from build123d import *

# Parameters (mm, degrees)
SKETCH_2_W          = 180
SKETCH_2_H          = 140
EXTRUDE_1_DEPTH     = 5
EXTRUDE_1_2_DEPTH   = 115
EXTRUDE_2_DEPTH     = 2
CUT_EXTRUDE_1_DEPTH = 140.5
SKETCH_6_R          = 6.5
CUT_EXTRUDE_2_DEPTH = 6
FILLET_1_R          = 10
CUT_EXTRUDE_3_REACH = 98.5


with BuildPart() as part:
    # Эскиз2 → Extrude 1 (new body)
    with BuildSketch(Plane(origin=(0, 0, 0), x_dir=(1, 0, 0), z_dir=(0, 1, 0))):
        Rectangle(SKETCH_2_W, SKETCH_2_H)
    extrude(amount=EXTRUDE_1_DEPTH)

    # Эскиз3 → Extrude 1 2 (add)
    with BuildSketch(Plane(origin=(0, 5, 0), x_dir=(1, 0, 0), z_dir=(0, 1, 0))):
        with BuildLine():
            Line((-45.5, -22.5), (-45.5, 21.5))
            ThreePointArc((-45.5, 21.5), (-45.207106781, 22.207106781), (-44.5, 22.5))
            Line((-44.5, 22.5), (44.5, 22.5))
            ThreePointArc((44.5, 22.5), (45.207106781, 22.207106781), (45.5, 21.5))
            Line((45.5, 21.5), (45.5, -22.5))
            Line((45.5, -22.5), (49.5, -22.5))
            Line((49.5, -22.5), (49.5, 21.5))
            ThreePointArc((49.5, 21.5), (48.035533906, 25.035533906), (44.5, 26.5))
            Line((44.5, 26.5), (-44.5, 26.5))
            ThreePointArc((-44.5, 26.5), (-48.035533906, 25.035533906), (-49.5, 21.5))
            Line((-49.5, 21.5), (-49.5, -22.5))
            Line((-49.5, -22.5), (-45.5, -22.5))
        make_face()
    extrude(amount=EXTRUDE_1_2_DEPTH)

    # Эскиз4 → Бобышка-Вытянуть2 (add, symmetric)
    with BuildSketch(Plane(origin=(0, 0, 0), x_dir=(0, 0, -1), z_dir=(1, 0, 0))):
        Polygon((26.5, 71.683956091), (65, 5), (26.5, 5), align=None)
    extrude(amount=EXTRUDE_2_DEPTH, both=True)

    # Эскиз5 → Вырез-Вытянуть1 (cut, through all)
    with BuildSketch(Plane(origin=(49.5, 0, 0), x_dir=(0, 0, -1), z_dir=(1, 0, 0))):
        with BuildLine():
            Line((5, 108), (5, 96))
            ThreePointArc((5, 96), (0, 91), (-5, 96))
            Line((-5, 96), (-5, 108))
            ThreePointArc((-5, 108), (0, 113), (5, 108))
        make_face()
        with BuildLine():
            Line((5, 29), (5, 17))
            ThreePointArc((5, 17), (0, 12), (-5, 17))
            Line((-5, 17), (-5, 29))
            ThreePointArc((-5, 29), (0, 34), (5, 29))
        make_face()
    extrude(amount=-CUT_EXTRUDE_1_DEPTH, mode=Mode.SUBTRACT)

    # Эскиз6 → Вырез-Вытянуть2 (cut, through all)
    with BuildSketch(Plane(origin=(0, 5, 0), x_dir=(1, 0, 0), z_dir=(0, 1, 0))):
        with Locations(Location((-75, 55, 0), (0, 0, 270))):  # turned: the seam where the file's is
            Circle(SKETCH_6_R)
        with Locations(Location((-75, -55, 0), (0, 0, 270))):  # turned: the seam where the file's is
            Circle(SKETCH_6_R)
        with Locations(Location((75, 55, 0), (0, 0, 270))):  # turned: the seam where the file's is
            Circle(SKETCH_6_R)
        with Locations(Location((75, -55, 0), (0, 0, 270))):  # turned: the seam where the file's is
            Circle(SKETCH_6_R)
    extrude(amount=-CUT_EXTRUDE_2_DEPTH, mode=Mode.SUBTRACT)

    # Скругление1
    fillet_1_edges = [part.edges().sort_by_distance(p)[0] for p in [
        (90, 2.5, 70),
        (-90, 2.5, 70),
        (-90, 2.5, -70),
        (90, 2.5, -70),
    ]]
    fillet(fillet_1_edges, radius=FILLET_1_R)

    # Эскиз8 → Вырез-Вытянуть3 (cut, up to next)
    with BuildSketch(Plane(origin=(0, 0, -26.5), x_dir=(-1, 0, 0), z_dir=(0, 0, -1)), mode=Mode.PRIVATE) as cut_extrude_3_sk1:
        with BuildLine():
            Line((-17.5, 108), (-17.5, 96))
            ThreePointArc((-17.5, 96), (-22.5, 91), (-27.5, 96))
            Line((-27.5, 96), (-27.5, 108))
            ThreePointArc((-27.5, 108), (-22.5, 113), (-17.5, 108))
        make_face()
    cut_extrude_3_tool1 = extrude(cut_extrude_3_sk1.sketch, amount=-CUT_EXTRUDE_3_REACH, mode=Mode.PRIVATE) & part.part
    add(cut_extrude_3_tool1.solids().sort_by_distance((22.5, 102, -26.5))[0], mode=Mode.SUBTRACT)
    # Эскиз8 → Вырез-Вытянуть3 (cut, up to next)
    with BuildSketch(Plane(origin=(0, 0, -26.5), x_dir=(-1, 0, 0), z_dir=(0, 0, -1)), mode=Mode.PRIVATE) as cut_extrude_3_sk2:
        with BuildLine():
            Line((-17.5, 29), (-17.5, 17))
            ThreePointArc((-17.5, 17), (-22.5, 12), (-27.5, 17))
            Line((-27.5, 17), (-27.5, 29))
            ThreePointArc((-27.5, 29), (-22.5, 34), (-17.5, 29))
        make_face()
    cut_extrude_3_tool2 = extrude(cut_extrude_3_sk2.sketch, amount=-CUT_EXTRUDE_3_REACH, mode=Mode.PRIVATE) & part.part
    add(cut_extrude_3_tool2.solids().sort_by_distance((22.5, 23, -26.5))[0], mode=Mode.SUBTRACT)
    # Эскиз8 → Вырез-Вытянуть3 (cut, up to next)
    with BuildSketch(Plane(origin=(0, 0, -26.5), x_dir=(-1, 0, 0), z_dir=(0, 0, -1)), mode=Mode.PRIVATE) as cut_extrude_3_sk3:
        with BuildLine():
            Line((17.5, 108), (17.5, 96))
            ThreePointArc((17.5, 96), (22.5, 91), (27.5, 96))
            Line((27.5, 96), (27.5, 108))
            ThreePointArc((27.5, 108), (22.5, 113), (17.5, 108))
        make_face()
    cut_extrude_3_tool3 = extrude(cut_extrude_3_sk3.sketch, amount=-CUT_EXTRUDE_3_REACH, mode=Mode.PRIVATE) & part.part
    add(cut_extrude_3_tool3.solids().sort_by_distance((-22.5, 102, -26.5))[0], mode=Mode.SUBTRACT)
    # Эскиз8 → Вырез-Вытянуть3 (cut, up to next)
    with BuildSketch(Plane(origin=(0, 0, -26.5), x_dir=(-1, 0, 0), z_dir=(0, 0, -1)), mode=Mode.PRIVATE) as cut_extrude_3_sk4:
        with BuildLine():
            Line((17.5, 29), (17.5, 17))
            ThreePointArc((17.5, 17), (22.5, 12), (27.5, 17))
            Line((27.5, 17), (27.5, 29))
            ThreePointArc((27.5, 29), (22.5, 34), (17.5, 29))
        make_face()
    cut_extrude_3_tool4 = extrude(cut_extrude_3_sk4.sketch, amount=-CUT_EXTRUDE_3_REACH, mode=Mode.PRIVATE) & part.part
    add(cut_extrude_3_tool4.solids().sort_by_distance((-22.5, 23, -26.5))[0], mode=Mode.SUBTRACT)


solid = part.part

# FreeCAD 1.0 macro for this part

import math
import FreeCAD as App
import Part
import Sketcher
Q = App.Units.Quantity


def edges_at(feature, points):
    """Names of the edges that pass closest to the given points."""
    edges = feature.Shape.Edges
    near = lambda p: min(range(len(edges)), key=lambda i: edges[i].distToShape(Part.Vertex(*p))[0])
    return sorted({f"Edge{near(p) + 1}" for p in points})

doc = App.newDocument("Part")
body = doc.addObject("PartDesign::Body", "Body")

# Sketch on XZ plane
sketch1 = body.newObject("Sketcher::SketchObject", "Sketch")
sketch1.AttachmentSupport = (doc.getObject("XZ_Plane"), [""])
sketch1.MapMode = "FlatFace"
sketch1.addGeometry([
    Part.LineSegment(App.Vector(-90, -70, 0), App.Vector(-90, 70, 0)),
    Part.LineSegment(App.Vector(-90, 70, 0), App.Vector(90, 70, 0)),
    Part.LineSegment(App.Vector(90, 70, 0), App.Vector(90, -70, 0)),
    Part.LineSegment(App.Vector(90, -70, 0), App.Vector(-90, -70, 0)),
], False)
sketch1.addConstraint([
    Sketcher.Constraint("Coincident", 0, 2, 1, 1),
    Sketcher.Constraint("Coincident", 1, 2, 2, 1),
    Sketcher.Constraint("Coincident", 2, 2, 3, 1),
    Sketcher.Constraint("Coincident", 3, 2, 0, 1),
    Sketcher.Constraint("Vertical", 0),
    Sketcher.Constraint("Horizontal", 1),
    Sketcher.Constraint("Vertical", 2),
    Sketcher.Constraint("Horizontal", 3),
    Sketcher.Constraint("Symmetric", 0, 2, 2, 2, -1, 1),
    Sketcher.Constraint("DistanceX", 1, 1, 1, 2, Q("180 mm")),
    Sketcher.Constraint("DistanceY", 0, 1, 0, 2, Q("140 mm")),
])
pad1 = body.newObject("PartDesign::Pad", "Pad")
pad1.Profile = sketch1
pad1.Length = 5
pad1.Reversed = True

# Sketch on XZ plane
sketch2 = body.newObject("Sketcher::SketchObject", "Sketch001")
sketch2.AttachmentSupport = (doc.getObject("XZ_Plane"), [""])
sketch2.MapMode = "FlatFace"
sketch2.AttachmentOffset = App.Placement(App.Vector(0, 0, -5), App.Rotation())
sketch2.addGeometry([
    Part.LineSegment(App.Vector(-45.5, 22.5, 0), App.Vector(-45.5, -21.5, 0)),  # 0
    Part.ArcOfCircle(Part.Circle(App.Vector(-44.5, -21.5, 0), App.Vector(0, 0, 1), 1), math.radians(-180), math.radians(-90)),  # 1
    Part.LineSegment(App.Vector(-44.5, -22.5, 0), App.Vector(44.5, -22.5, 0)),  # 2
    Part.ArcOfCircle(Part.Circle(App.Vector(44.5, -21.5, 0), App.Vector(0, 0, 1), 1), math.radians(-90), math.radians(0)),  # 3
    Part.LineSegment(App.Vector(45.5, -21.5, 0), App.Vector(45.5, 22.5, 0)),  # 4
    Part.LineSegment(App.Vector(45.5, 22.5, 0), App.Vector(49.5, 22.5, 0)),  # 5
    Part.LineSegment(App.Vector(49.5, 22.5, 0), App.Vector(49.5, -21.5, 0)),  # 6
    Part.ArcOfCircle(Part.Circle(App.Vector(44.5, -21.5, 0), App.Vector(0, 0, 1), 5), math.radians(-90), math.radians(0)),  # 7
    Part.LineSegment(App.Vector(44.5, -26.5, 0), App.Vector(-44.5, -26.5, 0)),  # 8
    Part.ArcOfCircle(Part.Circle(App.Vector(-44.5, -21.5, 0), App.Vector(0, 0, 1), 5), math.radians(180), math.radians(270)),  # 9
    Part.LineSegment(App.Vector(-49.5, -21.5, 0), App.Vector(-49.5, 22.5, 0)),  # 10
    Part.LineSegment(App.Vector(-49.5, 22.5, 0), App.Vector(-45.5, 22.5, 0)),  # 11
], False)
sketch2.addConstraint([
    Sketcher.Constraint("Tangent", 0, 2, 1, 1),
    Sketcher.Constraint("Tangent", 1, 2, 2, 1),
    Sketcher.Constraint("Tangent", 2, 2, 3, 1),
    Sketcher.Constraint("Tangent", 3, 2, 4, 1),
    Sketcher.Constraint("Coincident", 4, 2, 5, 1),
    Sketcher.Constraint("Coincident", 5, 2, 6, 1),
    Sketcher.Constraint("Tangent", 6, 2, 7, 2),
    Sketcher.Constraint("Tangent", 7, 1, 8, 1),
    Sketcher.Constraint("Tangent", 8, 2, 9, 2),
    Sketcher.Constraint("Tangent", 9, 1, 10, 1),
    Sketcher.Constraint("Coincident", 10, 2, 11, 1),
    Sketcher.Constraint("Coincident", 11, 2, 0, 1),
    Sketcher.Constraint("Vertical", 0),
    Sketcher.Constraint("Horizontal", 2),
    Sketcher.Constraint("Vertical", 4),
    Sketcher.Constraint("Horizontal", 5),
    Sketcher.Constraint("Vertical", 6),
    Sketcher.Constraint("Horizontal", 8),
    Sketcher.Constraint("Vertical", 10),
    Sketcher.Constraint("Horizontal", 11),
    Sketcher.Constraint("Coincident", 7, 3, 3, 3),
    Sketcher.Constraint("Coincident", 9, 3, 1, 3),
    Sketcher.Constraint("Equal", 1, 3),
    Sketcher.Constraint("Symmetric", 5, 2, 10, 2, -2),
    Sketcher.Constraint("Radius", 1, Q("1 mm")),
    Sketcher.Constraint("Radius", 7, Q("5 mm")),
    Sketcher.Constraint("DistanceX", 2, 1, 2, 2, Q("89 mm")),
    Sketcher.Constraint("DistanceY", 0, 2, 0, 1, Q("44 mm")),
    Sketcher.Constraint("DistanceY", 1, 3, -1, 1, Q("21.5 mm")),
])
pad2 = body.newObject("PartDesign::Pad", "Pad001")
pad2.Profile = sketch2
pad2.Length = 115
pad2.Reversed = True

# Sketch on YZ plane
sketch3 = body.newObject("Sketcher::SketchObject", "Sketch002")
sketch3.AttachmentSupport = (doc.getObject("YZ_Plane"), [""])
sketch3.MapMode = "FlatFace"
sketch3.addGeometry([
    Part.LineSegment(App.Vector(5, -65, 0), App.Vector(72, -26, 0)),
    Part.LineSegment(App.Vector(72, -26, 0), App.Vector(5, -26, 0)),
    Part.LineSegment(App.Vector(5, -26, 0), App.Vector(5, -65, 0)),
], False)
sketch3.addConstraint([
    Sketcher.Constraint("Coincident", 0, 2, 1, 1),
    Sketcher.Constraint("Coincident", 1, 2, 2, 1),
    Sketcher.Constraint("Coincident", 2, 2, 0, 1),
    Sketcher.Constraint("Horizontal", 1),
    Sketcher.Constraint("Vertical", 2),
    Sketcher.Constraint("Angle", 0, Q("30 deg")),
    Sketcher.Constraint("Distance", 0, Q("77 mm")),
    Sketcher.Constraint("DistanceX", -1, 1, 1, 2, Q("5 mm")),
    Sketcher.Constraint("DistanceY", 2, 2, -1, 1, Q("65 mm")),
])
pad3 = body.newObject("PartDesign::Pad", "Pad002")
pad3.Profile = sketch3
pad3.Length = 4
pad3.Midplane = True

# Sketch on YZ plane
sketch4 = body.newObject("Sketcher::SketchObject", "Sketch003")
sketch4.AttachmentSupport = (doc.getObject("YZ_Plane"), [""])
sketch4.MapMode = "FlatFace"
sketch4.AttachmentOffset = App.Placement(App.Vector(0, 0, 49.5), App.Rotation())
sketch4.addGeometry([
    Part.LineSegment(App.Vector(96, -5, 0), App.Vector(108, -5, 0)),  # 0
    Part.ArcOfCircle(Part.Circle(App.Vector(108, 0, 0), App.Vector(0, 0, 1), 5), math.radians(-90), math.radians(90)),  # 1
    Part.LineSegment(App.Vector(108, 5, 0), App.Vector(96, 5, 0)),  # 2
    Part.ArcOfCircle(Part.Circle(App.Vector(96, 0, 0), App.Vector(0, 0, 1), 5), math.radians(90), math.radians(270)),  # 3
    Part.LineSegment(App.Vector(17, -5, 0), App.Vector(29, -5, 0)),  # 4
    Part.ArcOfCircle(Part.Circle(App.Vector(29, 0, 0), App.Vector(0, 0, 1), 5), math.radians(-90), math.radians(90)),  # 5
    Part.LineSegment(App.Vector(29, 5, 0), App.Vector(17, 5, 0)),  # 6
    Part.ArcOfCircle(Part.Circle(App.Vector(17, 0, 0), App.Vector(0, 0, 1), 5), math.radians(90), math.radians(270)),  # 7
], False)
sketch4.addConstraint([
    Sketcher.Constraint("Tangent", 0, 2, 1, 1),
    Sketcher.Constraint("Tangent", 1, 2, 2, 1),
    Sketcher.Constraint("Tangent", 2, 2, 3, 1),
    Sketcher.Constraint("Tangent", 3, 2, 0, 1),
    Sketcher.Constraint("Tangent", 4, 2, 5, 1),
    Sketcher.Constraint("Tangent", 5, 2, 6, 1),
    Sketcher.Constraint("Tangent", 6, 2, 7, 1),
    Sketcher.Constraint("Tangent", 7, 2, 4, 1),
    Sketcher.Constraint("Horizontal", 0),
    Sketcher.Constraint("Horizontal", 2),
    Sketcher.Constraint("Horizontal", 4),
    Sketcher.Constraint("Horizontal", 6),
    Sketcher.Constraint("Equal", 3, 5),
    Sketcher.Constraint("PointOnObject", 1, 3, -1),
    Sketcher.Constraint("PointOnObject", 5, 3, -1),
    Sketcher.Constraint("Equal", 2, 4),
    Sketcher.Constraint("Radius", 1, Q("5 mm")),
    Sketcher.Constraint("DistanceX", 0, 1, 0, 2, Q("12 mm")),
    Sketcher.Constraint("DistanceX", -1, 1, 1, 3, Q("108 mm")),
    Sketcher.Constraint("DistanceX", -1, 1, 5, 3, Q("29 mm")),
])
pocket1 = body.newObject("PartDesign::Pocket", "Pocket")
pocket1.Profile = sketch4
pocket1.Type = "ThroughAll"

# Sketch on XZ plane
sketch5 = body.newObject("Sketcher::SketchObject", "Sketch004")
sketch5.AttachmentSupport = (doc.getObject("XZ_Plane"), [""])
sketch5.MapMode = "FlatFace"
sketch5.AttachmentOffset = App.Placement(App.Vector(0, 0, -5), App.Rotation())
sketch5.addGeometry([
    Part.Circle(App.Vector(-75, -55, 0), App.Vector(0, 0, 1), 6),
    Part.Circle(App.Vector(-75, 55, 0), App.Vector(0, 0, 1), 6),
    Part.Circle(App.Vector(75, -55, 0), App.Vector(0, 0, 1), 6),
    Part.Circle(App.Vector(75, 55, 0), App.Vector(0, 0, 1), 6),
], False)
sketch5.addConstraint([
    Sketcher.Constraint("Equal", 0, 1),
    Sketcher.Constraint("Equal", 1, 2),
    Sketcher.Constraint("Equal", 2, 3),
    Sketcher.Constraint("Symmetric", 1, 3, 2, 3, -1, 1),
    Sketcher.Constraint("Symmetric", 0, 3, 3, 3, -1, 1),
    Sketcher.Constraint("Symmetric", 0, 3, 2, 3, -2),
    Sketcher.Constraint("Diameter", 0, Q("13 mm")),
    Sketcher.Constraint("DistanceX", 0, 3, -1, 1, Q("75 mm")),
    Sketcher.Constraint("DistanceY", 0, 3, -1, 1, Q("55 mm")),
])
pocket2 = body.newObject("PartDesign::Pocket", "Pocket001")
pocket2.Profile = sketch5
pocket2.Type = "ThroughAll"
pocket2.Reversed = True
doc.recompute()

fillet = body.newObject("PartDesign::Fillet", "Fillet")
fillet.Base = (pocket2, edges_at(pocket2, [
    (90, 2.5, 70),
    (-90, 2.5, 70),
    (-90, 2.5, -70),
    (90, 2.5, -70),
]))
fillet.Radius = 10

# Sketch on XY plane
sketch6 = body.newObject("Sketcher::SketchObject", "Sketch005")
sketch6.AttachmentSupport = (doc.getObject("XY_Plane"), [""])
sketch6.MapMode = "FlatFace"
sketch6.AttachmentOffset = App.Placement(App.Vector(0, 0, -26.5), App.Rotation())
sketch6.addGeometry([
    Part.LineSegment(App.Vector(18, 96, 0), App.Vector(18, 108, 0)),
    Part.ArcOfCircle(Part.Circle(App.Vector(22, 108, 0), App.Vector(0, 0, 1), 5), math.radians(0), math.radians(180)),
    Part.LineSegment(App.Vector(28, 108, 0), App.Vector(28, 96, 0)),
    Part.ArcOfCircle(Part.Circle(App.Vector(22, 96, 0), App.Vector(0, 0, 1), 5), math.radians(180), math.radians(360)),
], False)
sketch6.addConstraint([
    Sketcher.Constraint("Tangent", 0, 2, 1, 2),
    Sketcher.Constraint("Tangent", 1, 1, 2, 1),
    Sketcher.Constraint("Tangent", 2, 2, 3, 2),
    Sketcher.Constraint("Tangent", 3, 1, 0, 1),
    Sketcher.Constraint("Vertical", 0),
    Sketcher.Constraint("Vertical", 2),
    Sketcher.Constraint("Radius", 1, Q("5 mm")),
    Sketcher.Constraint("DistanceY", 0, 1, 0, 2, Q("12 mm")),
    Sketcher.Constraint("DistanceY", -1, 1, 1, 3, Q("108 mm")),
    Sketcher.Constraint("DistanceX", -1, 1, 1, 3, Q("22.5 mm")),
])
pocket3 = body.newObject("PartDesign::Pocket", "Pocket002")
pocket3.Profile = sketch6
pocket3.Type = "UpToFirst"
pocket3.Reversed = True

# Sketch on XY plane
sketch7 = body.newObject("Sketcher::SketchObject", "Sketch006")
sketch7.AttachmentSupport = (doc.getObject("XY_Plane"), [""])
sketch7.MapMode = "FlatFace"
sketch7.AttachmentOffset = App.Placement(App.Vector(0, 0, -26.5), App.Rotation())
sketch7.addGeometry([
    Part.LineSegment(App.Vector(18, 17, 0), App.Vector(18, 29, 0)),
    Part.ArcOfCircle(Part.Circle(App.Vector(22, 29, 0), App.Vector(0, 0, 1), 5), math.radians(0), math.radians(180)),
    Part.LineSegment(App.Vector(28, 29, 0), App.Vector(28, 17, 0)),
    Part.ArcOfCircle(Part.Circle(App.Vector(22, 17, 0), App.Vector(0, 0, 1), 5), math.radians(180), math.radians(360)),
], False)
sketch7.addConstraint([
    Sketcher.Constraint("Tangent", 0, 2, 1, 2),
    Sketcher.Constraint("Tangent", 1, 1, 2, 1),
    Sketcher.Constraint("Tangent", 2, 2, 3, 2),
    Sketcher.Constraint("Tangent", 3, 1, 0, 1),
    Sketcher.Constraint("Vertical", 0),
    Sketcher.Constraint("Vertical", 2),
    Sketcher.Constraint("Radius", 1, Q("5 mm")),
    Sketcher.Constraint("DistanceY", 0, 1, 0, 2, Q("12 mm")),
    Sketcher.Constraint("DistanceY", -1, 1, 1, 3, Q("29 mm")),
    Sketcher.Constraint("DistanceX", -1, 1, 1, 3, Q("22.5 mm")),
])
pocket4 = body.newObject("PartDesign::Pocket", "Pocket003")
pocket4.Profile = sketch7
pocket4.Type = "UpToFirst"
pocket4.Reversed = True

# Sketch on XY plane
sketch8 = body.newObject("Sketcher::SketchObject", "Sketch007")
sketch8.AttachmentSupport = (doc.getObject("XY_Plane"), [""])
sketch8.MapMode = "FlatFace"
sketch8.AttachmentOffset = App.Placement(App.Vector(0, 0, -26.5), App.Rotation())
sketch8.addGeometry([
    Part.LineSegment(App.Vector(-18, 108, 0), App.Vector(-18, 96, 0)),
    Part.ArcOfCircle(Part.Circle(App.Vector(-22, 96, 0), App.Vector(0, 0, 1), 5), math.radians(180), math.radians(360)),
    Part.LineSegment(App.Vector(-28, 96, 0), App.Vector(-28, 108, 0)),
    Part.ArcOfCircle(Part.Circle(App.Vector(-22, 108, 0), App.Vector(0, 0, 1), 5), math.radians(0), math.radians(180)),
], False)
sketch8.addConstraint([
    Sketcher.Constraint("Tangent", 0, 2, 1, 2),
    Sketcher.Constraint("Tangent", 1, 1, 2, 1),
    Sketcher.Constraint("Tangent", 2, 2, 3, 2),
    Sketcher.Constraint("Tangent", 3, 1, 0, 1),
    Sketcher.Constraint("Vertical", 0),
    Sketcher.Constraint("Vertical", 2),
    Sketcher.Constraint("Radius", 1, Q("5 mm")),
    Sketcher.Constraint("DistanceY", 0, 2, 0, 1, Q("12 mm")),
    Sketcher.Constraint("DistanceY", -1, 1, 1, 3, Q("96 mm")),
    Sketcher.Constraint("DistanceX", 1, 3, -1, 1, Q("22.5 mm")),
])
pocket5 = body.newObject("PartDesign::Pocket", "Pocket004")
pocket5.Profile = sketch8
pocket5.Type = "UpToFirst"
pocket5.Reversed = True

# Sketch on XY plane
sketch9 = body.newObject("Sketcher::SketchObject", "Sketch008")
sketch9.AttachmentSupport = (doc.getObject("XY_Plane"), [""])
sketch9.MapMode = "FlatFace"
sketch9.AttachmentOffset = App.Placement(App.Vector(0, 0, -26.5), App.Rotation())
sketch9.addGeometry([
    Part.LineSegment(App.Vector(-18, 29, 0), App.Vector(-18, 17, 0)),
    Part.ArcOfCircle(Part.Circle(App.Vector(-22, 17, 0), App.Vector(0, 0, 1), 5), math.radians(180), math.radians(360)),
    Part.LineSegment(App.Vector(-28, 17, 0), App.Vector(-28, 29, 0)),
    Part.ArcOfCircle(Part.Circle(App.Vector(-22, 29, 0), App.Vector(0, 0, 1), 5), math.radians(0), math.radians(180)),
], False)
sketch9.addConstraint([
    Sketcher.Constraint("Tangent", 0, 2, 1, 2),
    Sketcher.Constraint("Tangent", 1, 1, 2, 1),
    Sketcher.Constraint("Tangent", 2, 2, 3, 2),
    Sketcher.Constraint("Tangent", 3, 1, 0, 1),
    Sketcher.Constraint("Vertical", 0),
    Sketcher.Constraint("Vertical", 2),
    Sketcher.Constraint("Radius", 1, Q("5 mm")),
    Sketcher.Constraint("DistanceY", 0, 2, 0, 1, Q("12 mm")),
    Sketcher.Constraint("DistanceY", -1, 1, 1, 3, Q("17 mm")),
    Sketcher.Constraint("DistanceX", 1, 3, -1, 1, Q("22.5 mm")),
])
pocket6 = body.newObject("PartDesign::Pocket", "Pocket005")
pocket6.Profile = sketch9
pocket6.Type = "UpToFirst"
pocket6.Reversed = True

doc.recompute()
